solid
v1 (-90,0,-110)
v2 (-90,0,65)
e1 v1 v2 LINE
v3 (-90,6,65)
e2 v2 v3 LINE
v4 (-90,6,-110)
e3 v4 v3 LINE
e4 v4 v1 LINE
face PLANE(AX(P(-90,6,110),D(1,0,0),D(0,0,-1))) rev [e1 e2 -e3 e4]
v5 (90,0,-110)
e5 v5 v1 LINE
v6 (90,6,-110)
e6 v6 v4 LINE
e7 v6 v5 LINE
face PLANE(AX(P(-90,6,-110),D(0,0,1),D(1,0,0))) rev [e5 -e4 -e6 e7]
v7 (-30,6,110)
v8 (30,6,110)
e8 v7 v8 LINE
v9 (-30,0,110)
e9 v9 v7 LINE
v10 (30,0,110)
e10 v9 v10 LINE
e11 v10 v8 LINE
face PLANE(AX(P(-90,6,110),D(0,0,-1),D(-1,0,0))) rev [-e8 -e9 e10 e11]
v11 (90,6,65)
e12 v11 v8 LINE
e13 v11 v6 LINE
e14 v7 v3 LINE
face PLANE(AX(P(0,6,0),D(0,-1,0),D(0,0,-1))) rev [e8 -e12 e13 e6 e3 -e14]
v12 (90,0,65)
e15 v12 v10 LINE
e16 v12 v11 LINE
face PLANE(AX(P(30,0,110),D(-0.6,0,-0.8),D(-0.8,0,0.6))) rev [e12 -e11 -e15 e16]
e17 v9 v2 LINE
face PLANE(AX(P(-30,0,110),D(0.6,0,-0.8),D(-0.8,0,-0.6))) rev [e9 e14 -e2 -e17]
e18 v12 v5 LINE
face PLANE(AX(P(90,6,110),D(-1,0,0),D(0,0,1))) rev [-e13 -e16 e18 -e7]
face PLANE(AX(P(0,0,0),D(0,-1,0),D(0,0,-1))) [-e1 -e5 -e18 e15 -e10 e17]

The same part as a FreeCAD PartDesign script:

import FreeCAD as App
import Part
import Sketcher
from FreeCAD import Vector
Q = App.Units.Quantity

doc = App.newDocument("Part")
body = doc.addObject("PartDesign::Body", "Body")

# Sketch on XZ plane
sketch1 = doc.addObject("Sketcher::SketchObject", "Sketch")
body.addObject(sketch1)
sketch1.AttachmentSupport = (doc.XZ_Plane, [""])
sketch1.MapMode = "FlatFace"
sketch1.addGeometry([
    Part.LineSegment(Vector(-90, -110, 0), Vector(-90, 110, 0)),
    Part.LineSegment(Vector(-90, 110, 0), Vector(90, 110, 0)),
    Part.LineSegment(Vector(90, 110, 0), Vector(90, -110, 0)),
    Part.LineSegment(Vector(90, -110, 0), Vector(-90, -110, 0)),
], False)
sketch1.addConstraint([
    Sketcher.Constraint("Coincident", 0, 2, 1, 1),
    Sketcher.Constraint("Coincident", 1, 2, 2, 1),
    Sketcher.Constraint("Coincident", 2, 2, 3, 1),
    Sketcher.Constraint("Coincident", 3, 2, 0, 1),
    Sketcher.Constraint("Vertical", 0),
    Sketcher.Constraint("Horizontal", 1),
    Sketcher.Constraint("Vertical", 2),
    Sketcher.Constraint("Horizontal", 3),
    Sketcher.Constraint("Symmetric", 0, 2, 2, 2, -1, 1),
    Sketcher.Constraint("DistanceX", 1, 1, 1, 2, Q("180 mm")),
    Sketcher.Constraint("DistanceY", 0, 1, 0, 2, Q("220 mm")),
])
pad1 = doc.addObject("PartDesign::Pad", "Pad")
body.addObject(pad1)
pad1.Profile = sketch1
pad1.Length = 6
pad1.Reversed = True

# Sketch on XZ plane
sketch2 = doc.addObject("Sketcher::SketchObject", "Sketch001")
body.addObject(sketch2)
sketch2.AttachmentSupport = (doc.XZ_Plane, [""])
sketch2.MapMode = "FlatFace"
sketch2.AttachmentOffset = App.Placement(Vector(0, 0, -6), App.Rotation())
sketch2.addGeometry([
    Part.LineSegment(Vector(-90, 110, 0), Vector(-30, 110, 0)),  # 0
    Part.LineSegment(Vector(-30, 110, 0), Vector(-90, 65, 0)),  # 1
    Part.LineSegment(Vector(-90, 65, 0), Vector(-90, 110, 0)),  # 2
    Part.LineSegment(Vector(90, 65, 0), Vector(30, 110, 0)),  # 3
    Part.LineSegment(Vector(30, 110, 0), Vector(90, 110, 0)),  # 4
    Part.LineSegment(Vector(90, 110, 0), Vector(90, 65, 0)),  # 5
], False)
sketch2.addConstraint([
    Sketcher.Constraint("Coincident", 0, 2, 1, 1),
    Sketcher.Constraint("Coincident", 1, 2, 2, 1),
    Sketcher.Constraint("Coincident", 2, 2, 0, 1),
    Sketcher.Constraint("Coincident", 3, 2, 4, 1),
    Sketcher.Constraint("Coincident", 4, 2, 5, 1),
    Sketcher.Constraint("Coincident", 5, 2, 3, 1),
    Sketcher.Constraint("Horizontal", 0),
    Sketcher.Constraint("Vertical", 2),
    Sketcher.Constraint("Horizontal", 4),
    Sketcher.Constraint("Vertical", 5),
    Sketcher.Constraint("Symmetric", 0, 2, 3, 2, -2),
    Sketcher.Constraint("Symmetric", 1, 2, 5, 2, -2),
    Sketcher.Constraint("DistanceX", 0, 1, 0, 2, Q("60 mm")),
    Sketcher.Constraint("DistanceY", 2, 1, 2, 2, Q("45 mm")),
    Sketcher.Constraint("DistanceX", 0, 2, -1, 1, Q("30 mm")),
    Sketcher.Constraint("DistanceY", -1, 1, 0, 2, Q("110 mm")),
])
pocket1 = doc.addObject("PartDesign::Pocket", "Pocket")
body.addObject(pocket1)
pocket1.Profile = sketch2
pocket1.Type = "ThroughAll"
pocket1.Reversed = True

doc.recompute()
